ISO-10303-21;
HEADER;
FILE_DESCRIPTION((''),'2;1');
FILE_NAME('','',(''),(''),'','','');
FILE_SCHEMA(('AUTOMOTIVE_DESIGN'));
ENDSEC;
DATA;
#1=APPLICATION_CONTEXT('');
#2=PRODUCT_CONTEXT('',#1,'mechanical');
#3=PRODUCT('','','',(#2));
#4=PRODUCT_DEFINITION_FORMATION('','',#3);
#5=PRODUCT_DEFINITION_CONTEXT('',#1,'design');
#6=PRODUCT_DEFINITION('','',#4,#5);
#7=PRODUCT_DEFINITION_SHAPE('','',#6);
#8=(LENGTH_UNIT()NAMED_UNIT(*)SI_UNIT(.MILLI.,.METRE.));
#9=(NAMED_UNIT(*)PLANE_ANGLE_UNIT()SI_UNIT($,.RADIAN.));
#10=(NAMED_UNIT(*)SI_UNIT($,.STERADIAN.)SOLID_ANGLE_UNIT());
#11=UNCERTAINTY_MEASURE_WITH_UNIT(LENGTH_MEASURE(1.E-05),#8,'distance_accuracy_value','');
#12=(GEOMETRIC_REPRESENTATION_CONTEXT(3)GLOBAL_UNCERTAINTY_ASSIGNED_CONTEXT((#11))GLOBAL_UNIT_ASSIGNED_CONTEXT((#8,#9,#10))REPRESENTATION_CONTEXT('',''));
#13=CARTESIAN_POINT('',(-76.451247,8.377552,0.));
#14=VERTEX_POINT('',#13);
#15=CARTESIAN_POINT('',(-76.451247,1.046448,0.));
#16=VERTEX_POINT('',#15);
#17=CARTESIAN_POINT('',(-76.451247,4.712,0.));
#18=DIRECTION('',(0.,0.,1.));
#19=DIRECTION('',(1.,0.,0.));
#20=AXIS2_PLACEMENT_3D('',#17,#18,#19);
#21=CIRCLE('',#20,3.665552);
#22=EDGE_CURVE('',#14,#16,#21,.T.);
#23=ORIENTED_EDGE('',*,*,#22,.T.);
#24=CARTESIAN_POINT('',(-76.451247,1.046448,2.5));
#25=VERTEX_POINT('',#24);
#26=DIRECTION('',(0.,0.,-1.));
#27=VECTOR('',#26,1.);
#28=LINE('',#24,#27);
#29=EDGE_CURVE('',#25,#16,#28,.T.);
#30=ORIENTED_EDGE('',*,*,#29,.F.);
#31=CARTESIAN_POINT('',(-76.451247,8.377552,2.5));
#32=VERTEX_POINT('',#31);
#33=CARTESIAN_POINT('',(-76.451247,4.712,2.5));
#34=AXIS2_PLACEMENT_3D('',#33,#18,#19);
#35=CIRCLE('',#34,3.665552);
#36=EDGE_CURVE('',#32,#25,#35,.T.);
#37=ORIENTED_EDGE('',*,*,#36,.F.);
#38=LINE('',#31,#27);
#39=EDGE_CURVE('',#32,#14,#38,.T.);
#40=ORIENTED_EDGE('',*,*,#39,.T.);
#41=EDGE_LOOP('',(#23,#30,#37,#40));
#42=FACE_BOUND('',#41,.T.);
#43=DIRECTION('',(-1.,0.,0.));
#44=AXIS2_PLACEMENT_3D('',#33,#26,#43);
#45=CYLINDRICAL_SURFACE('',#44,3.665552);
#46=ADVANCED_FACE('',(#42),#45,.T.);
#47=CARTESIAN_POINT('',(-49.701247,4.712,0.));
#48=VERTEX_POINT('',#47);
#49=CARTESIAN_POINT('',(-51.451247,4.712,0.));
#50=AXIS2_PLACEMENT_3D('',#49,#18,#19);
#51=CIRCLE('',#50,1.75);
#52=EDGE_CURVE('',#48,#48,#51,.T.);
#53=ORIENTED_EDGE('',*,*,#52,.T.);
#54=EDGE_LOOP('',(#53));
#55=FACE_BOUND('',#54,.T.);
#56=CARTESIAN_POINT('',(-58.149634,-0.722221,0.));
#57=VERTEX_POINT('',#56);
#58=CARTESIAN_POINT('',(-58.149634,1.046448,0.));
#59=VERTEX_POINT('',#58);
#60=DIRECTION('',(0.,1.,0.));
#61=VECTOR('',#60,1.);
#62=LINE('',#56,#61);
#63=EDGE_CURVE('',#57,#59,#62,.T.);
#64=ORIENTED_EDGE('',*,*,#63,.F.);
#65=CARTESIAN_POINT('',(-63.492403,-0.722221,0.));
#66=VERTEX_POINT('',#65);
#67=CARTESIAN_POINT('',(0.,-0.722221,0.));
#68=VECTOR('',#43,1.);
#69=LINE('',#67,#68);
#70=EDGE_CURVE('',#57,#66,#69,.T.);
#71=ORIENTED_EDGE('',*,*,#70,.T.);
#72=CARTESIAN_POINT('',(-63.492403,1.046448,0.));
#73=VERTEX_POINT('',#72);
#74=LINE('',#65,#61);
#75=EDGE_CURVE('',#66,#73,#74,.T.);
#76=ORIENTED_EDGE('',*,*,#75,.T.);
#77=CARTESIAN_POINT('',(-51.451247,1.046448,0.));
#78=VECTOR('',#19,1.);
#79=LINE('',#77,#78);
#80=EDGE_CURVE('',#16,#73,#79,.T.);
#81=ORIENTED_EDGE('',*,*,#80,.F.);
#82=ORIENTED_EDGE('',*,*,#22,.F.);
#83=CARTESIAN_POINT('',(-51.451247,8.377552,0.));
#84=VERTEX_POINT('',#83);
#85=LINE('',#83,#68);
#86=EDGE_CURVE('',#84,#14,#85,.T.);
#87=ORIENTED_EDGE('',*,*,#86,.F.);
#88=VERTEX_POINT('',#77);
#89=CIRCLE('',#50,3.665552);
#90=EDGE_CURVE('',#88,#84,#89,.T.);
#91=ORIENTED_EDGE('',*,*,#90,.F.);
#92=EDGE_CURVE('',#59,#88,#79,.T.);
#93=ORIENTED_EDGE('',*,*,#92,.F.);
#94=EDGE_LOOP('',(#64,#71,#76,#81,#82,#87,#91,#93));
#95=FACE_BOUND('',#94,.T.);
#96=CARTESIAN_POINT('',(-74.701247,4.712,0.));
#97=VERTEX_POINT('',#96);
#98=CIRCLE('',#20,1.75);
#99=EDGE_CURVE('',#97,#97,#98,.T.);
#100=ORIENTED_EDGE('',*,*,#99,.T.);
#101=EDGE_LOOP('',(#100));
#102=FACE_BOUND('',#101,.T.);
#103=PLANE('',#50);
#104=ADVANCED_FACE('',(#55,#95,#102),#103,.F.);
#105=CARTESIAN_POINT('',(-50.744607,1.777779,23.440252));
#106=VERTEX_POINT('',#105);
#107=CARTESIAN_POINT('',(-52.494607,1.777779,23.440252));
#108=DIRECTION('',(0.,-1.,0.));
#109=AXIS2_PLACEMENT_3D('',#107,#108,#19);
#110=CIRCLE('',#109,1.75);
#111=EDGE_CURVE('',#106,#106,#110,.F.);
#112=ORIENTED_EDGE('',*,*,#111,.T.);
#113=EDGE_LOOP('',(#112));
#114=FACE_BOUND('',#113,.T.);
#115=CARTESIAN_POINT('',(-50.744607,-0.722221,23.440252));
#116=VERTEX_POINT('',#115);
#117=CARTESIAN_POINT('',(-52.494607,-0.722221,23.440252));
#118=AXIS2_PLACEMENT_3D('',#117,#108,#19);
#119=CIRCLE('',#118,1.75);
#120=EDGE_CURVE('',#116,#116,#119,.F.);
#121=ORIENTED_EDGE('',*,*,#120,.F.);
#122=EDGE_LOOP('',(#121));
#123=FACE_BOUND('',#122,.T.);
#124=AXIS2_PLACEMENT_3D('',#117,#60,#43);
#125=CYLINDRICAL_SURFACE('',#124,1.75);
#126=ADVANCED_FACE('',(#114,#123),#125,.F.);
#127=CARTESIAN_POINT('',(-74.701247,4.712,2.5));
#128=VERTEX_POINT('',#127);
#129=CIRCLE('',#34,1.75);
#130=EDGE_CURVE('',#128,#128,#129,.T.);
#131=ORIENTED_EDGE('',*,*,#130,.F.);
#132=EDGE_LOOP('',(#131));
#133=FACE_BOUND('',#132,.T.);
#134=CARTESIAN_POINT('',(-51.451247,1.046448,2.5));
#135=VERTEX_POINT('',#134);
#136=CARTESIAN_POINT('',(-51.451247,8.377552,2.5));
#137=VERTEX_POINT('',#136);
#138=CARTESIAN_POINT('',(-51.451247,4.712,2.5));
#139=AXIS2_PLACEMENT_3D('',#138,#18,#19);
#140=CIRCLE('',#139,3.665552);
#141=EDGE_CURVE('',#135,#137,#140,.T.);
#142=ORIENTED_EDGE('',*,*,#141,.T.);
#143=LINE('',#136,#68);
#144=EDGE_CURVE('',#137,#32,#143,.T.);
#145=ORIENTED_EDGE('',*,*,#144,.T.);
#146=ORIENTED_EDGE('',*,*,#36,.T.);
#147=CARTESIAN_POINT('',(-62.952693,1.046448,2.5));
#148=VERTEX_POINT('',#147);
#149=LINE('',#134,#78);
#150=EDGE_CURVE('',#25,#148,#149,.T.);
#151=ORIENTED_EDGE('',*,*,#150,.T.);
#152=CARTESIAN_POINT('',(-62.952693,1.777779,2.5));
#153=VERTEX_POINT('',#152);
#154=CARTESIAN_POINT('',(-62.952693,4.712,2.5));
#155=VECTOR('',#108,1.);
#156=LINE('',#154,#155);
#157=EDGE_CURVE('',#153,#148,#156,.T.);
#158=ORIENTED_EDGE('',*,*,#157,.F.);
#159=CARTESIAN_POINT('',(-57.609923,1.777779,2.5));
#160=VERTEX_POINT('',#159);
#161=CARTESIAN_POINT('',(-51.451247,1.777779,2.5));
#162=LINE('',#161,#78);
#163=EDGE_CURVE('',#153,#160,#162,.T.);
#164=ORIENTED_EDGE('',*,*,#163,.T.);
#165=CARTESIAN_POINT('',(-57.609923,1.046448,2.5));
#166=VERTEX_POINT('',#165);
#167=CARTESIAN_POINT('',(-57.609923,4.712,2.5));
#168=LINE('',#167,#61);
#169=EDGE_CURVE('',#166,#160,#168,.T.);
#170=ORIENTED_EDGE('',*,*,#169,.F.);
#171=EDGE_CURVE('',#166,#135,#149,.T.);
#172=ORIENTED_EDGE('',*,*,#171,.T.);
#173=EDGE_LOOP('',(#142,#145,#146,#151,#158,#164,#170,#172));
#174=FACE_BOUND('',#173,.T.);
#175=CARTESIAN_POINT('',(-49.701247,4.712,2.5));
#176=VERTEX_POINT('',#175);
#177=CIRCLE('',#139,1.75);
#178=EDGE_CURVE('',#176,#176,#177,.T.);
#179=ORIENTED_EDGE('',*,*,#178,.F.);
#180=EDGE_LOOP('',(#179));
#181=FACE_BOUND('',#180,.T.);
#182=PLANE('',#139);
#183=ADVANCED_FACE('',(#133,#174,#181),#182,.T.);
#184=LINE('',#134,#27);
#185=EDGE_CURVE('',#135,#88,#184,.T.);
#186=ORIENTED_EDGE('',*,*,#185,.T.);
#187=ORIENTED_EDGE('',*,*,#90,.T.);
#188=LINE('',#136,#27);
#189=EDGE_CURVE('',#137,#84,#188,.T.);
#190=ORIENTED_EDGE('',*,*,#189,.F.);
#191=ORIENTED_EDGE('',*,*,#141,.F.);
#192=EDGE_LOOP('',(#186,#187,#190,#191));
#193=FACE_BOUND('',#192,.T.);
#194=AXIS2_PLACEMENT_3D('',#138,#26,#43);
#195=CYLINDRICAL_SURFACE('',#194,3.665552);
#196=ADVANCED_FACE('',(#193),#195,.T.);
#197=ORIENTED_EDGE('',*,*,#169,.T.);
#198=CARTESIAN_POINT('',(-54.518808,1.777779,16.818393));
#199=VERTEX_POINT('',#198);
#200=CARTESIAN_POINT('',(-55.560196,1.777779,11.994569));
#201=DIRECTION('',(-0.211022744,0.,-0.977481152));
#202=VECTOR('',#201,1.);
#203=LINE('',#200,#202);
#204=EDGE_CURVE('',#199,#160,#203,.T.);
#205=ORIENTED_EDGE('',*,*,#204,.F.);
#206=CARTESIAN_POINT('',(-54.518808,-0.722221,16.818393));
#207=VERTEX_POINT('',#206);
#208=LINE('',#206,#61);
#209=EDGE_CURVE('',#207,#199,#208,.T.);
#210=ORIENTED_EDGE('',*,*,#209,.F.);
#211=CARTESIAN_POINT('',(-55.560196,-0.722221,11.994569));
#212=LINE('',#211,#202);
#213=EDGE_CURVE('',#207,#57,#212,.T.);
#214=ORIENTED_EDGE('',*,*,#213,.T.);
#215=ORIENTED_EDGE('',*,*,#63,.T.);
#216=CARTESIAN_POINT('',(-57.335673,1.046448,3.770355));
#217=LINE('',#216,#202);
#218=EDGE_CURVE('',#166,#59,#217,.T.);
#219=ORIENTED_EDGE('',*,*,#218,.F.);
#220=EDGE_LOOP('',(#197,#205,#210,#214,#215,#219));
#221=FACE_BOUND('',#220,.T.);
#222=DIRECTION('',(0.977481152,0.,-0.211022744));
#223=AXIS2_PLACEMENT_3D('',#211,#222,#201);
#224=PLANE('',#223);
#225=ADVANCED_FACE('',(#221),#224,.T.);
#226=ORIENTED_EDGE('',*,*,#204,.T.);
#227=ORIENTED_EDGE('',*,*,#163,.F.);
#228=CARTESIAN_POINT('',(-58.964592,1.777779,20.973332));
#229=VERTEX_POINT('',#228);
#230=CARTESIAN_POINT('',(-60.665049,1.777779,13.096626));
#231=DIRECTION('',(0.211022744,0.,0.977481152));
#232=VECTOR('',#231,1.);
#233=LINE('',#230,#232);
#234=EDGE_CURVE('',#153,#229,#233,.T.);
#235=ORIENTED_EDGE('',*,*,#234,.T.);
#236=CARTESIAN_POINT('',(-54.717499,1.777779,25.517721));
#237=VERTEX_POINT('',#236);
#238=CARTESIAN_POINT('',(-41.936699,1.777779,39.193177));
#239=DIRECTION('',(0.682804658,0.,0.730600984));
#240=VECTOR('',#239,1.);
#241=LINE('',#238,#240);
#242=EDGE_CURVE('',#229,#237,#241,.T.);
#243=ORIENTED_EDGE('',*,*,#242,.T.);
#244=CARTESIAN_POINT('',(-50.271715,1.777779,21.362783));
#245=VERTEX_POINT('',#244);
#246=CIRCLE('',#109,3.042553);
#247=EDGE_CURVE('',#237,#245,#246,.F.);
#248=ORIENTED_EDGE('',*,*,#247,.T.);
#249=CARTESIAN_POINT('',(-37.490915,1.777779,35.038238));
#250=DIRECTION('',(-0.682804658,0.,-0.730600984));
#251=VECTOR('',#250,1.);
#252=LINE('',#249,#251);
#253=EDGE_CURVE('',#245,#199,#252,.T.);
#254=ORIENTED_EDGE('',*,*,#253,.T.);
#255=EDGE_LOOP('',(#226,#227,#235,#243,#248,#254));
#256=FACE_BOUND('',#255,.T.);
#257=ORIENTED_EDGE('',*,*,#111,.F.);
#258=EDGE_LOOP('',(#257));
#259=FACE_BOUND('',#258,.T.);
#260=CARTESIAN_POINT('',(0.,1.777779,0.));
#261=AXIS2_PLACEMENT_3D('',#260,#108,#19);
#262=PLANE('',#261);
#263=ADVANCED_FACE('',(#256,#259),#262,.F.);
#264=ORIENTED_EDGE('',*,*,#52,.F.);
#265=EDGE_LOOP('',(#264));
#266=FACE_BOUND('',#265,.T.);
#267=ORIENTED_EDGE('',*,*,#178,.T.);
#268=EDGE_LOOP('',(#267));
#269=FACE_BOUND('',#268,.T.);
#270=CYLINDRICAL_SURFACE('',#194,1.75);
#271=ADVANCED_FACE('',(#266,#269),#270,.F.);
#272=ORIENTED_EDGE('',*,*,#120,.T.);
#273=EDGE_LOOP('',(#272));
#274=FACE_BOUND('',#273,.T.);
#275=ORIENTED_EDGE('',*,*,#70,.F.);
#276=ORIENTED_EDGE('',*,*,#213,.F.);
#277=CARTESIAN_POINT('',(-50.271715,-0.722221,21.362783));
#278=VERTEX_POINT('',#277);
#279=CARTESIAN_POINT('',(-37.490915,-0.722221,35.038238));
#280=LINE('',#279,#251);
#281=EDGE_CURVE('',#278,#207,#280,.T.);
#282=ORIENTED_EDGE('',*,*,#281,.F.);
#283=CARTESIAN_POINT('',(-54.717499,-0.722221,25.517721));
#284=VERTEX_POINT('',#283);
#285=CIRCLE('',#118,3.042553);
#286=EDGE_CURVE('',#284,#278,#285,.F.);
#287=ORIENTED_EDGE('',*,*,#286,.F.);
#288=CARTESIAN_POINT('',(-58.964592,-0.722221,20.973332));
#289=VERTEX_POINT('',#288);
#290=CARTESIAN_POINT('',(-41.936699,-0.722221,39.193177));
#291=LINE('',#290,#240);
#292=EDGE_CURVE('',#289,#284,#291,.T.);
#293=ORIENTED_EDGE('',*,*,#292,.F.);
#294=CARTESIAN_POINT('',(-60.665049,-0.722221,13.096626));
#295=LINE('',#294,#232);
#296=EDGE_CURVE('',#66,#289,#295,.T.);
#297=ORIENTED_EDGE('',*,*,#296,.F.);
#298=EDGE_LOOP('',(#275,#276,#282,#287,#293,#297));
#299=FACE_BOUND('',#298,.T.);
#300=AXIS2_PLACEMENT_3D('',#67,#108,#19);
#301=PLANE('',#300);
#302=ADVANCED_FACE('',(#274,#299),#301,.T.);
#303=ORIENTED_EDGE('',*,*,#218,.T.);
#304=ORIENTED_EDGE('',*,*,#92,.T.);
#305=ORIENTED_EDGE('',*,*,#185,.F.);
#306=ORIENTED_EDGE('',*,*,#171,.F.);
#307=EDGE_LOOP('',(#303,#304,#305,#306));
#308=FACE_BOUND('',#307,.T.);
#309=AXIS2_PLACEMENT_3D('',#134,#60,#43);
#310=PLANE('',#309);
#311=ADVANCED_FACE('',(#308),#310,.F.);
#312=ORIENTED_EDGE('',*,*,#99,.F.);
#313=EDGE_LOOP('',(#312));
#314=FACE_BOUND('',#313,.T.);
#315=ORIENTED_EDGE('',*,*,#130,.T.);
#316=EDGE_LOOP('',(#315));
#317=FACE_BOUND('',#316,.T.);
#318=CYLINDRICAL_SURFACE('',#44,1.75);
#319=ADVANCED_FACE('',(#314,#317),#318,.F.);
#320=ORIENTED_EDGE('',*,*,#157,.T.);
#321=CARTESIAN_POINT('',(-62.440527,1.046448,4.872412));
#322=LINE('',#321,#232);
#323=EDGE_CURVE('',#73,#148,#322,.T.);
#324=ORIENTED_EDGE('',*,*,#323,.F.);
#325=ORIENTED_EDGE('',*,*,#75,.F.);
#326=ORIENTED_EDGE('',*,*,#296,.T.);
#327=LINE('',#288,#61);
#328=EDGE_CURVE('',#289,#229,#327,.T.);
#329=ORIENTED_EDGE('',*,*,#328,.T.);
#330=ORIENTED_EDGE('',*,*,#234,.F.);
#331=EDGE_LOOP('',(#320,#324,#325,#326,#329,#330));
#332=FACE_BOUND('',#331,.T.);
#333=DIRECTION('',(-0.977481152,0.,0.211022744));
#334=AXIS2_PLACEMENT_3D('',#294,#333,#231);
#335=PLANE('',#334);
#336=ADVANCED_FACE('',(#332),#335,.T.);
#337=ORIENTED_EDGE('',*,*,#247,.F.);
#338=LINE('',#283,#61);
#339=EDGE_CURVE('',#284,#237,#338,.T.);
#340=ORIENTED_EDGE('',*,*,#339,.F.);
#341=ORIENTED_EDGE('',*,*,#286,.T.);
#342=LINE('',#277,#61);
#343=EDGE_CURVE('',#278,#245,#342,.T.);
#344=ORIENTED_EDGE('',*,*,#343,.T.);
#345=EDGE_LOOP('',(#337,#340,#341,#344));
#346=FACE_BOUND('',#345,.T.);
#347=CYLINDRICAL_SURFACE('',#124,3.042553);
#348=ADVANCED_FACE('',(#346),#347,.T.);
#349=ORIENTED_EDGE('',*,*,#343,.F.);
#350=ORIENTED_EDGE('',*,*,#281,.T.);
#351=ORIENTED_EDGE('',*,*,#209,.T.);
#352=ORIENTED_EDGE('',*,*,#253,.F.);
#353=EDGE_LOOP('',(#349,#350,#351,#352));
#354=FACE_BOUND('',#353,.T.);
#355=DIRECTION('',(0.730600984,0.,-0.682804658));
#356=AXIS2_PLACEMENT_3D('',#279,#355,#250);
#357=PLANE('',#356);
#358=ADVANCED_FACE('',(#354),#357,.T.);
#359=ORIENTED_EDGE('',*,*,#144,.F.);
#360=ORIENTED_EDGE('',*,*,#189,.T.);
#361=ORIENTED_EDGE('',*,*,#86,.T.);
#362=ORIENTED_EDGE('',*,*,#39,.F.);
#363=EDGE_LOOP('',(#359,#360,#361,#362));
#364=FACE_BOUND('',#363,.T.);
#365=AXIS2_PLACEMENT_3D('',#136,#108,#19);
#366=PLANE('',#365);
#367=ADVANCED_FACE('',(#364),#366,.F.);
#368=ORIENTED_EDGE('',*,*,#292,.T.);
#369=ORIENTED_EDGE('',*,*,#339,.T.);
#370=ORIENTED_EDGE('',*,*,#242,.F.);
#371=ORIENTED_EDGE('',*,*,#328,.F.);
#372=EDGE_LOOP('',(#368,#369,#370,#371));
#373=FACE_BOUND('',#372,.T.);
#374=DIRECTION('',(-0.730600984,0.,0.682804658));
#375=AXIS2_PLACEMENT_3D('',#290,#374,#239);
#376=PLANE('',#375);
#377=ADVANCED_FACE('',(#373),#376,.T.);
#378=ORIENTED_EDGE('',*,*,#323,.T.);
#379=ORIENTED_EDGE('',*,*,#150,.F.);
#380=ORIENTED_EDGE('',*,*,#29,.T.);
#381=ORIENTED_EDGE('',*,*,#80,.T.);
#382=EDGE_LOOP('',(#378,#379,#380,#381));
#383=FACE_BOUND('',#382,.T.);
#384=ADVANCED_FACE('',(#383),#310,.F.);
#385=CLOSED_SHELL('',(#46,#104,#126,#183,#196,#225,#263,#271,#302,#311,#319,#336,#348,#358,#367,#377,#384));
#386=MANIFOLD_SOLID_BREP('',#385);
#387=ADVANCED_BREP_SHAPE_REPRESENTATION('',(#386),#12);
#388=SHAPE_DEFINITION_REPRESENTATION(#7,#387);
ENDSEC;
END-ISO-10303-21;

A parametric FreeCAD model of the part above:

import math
import FreeCAD as App
import Part
import Sketcher
from FreeCAD import Vector
Q = App.Units.Quantity

doc = App.newDocument("Part")
body = doc.addObject("PartDesign::Body", "Body")

# Sketch on XY plane
sketch1 = body.newObject("Sketcher::SketchObject", "Sketch")
sketch1.AttachmentSupport = (doc.getObject("XY_Plane"), [""])
sketch1.MapMode = "FlatFace"
sketch1.addGeometry(Part.LineSegment(Vector(-76.5, 1, 0), Vector(-51.5, 1, 0)), False)
sketch1.addGeometry(Part.ArcOfCircle(Part.Circle(Vector(-51.5, 4.7, 0), Vector(0, 0, 1), 3.7), math.radians(-90), math.radians(90)), False)
sketch1.addGeometry(Part.LineSegment(Vector(-51.5, 8.4, 0), Vector(-76.5, 8.4, 0)), False)
sketch1.addGeometry(Part.ArcOfCircle(Part.Circle(Vector(-76.5, 4.7, 0), Vector(0, 0, 1), 3.7), math.radians(90), math.radians(270)), False)
sketch1.addGeometry(Part.Circle(Vector(-51.5, 4.7, 0), Vector(0, 0, 1), 1.8), False)
sketch1.addGeometry(Part.Circle(Vector(-76.5, 4.7, 0), Vector(0, 0, 1), 1.8), False)
sketch1.addConstraint(Sketcher.Constraint("Tangent", 0, 2, 1, 1))
sketch1.addConstraint(Sketcher.Constraint("Tangent", 1, 2, 2, 1))
sketch1.addConstraint(Sketcher.Constraint("Tangent", 2, 2, 3, 1))
sketch1.addConstraint(Sketcher.Constraint("Tangent", 3, 2, 0, 1))
sketch1.addConstraint(Sketcher.Constraint("Horizontal", 0))
sketch1.addConstraint(Sketcher.Constraint("Horizontal", 2))
sketch1.addConstraint(Sketcher.Constraint("Coincident", 4, 3, 1, 3))
sketch1.addConstraint(Sketcher.Constraint("Coincident", 5, 3, 3, 3))
sketch1.addConstraint(Sketcher.Constraint("Equal", 4, 5))
sketch1.addConstraint(Sketcher.Constraint("Diameter", 4, Q("3.5 mm")))
sketch1.addConstraint(Sketcher.Constraint("DistanceX", 0, 1, 0, 2, Q("25 mm")))
sketch1.addConstraint(Sketcher.Constraint("DistanceY", -1, 1, 1, 3, Q("4.712 mm")))
sketch1.addConstraint(Sketcher.Constraint("Radius", 1, Q("3.665552 mm")))
sketch1.addConstraint(Sketcher.Constraint("DistanceX", 1, 3, -1, 1, Q("51.451247 mm")))
pad1 = body.newObject("PartDesign::Pad", "Pad")
pad1.Profile = sketch1
pad1.Length = 2.5

# Sketch on XZ plane
sketch2 = body.newObject("Sketcher::SketchObject", "Sketch001")
sketch2.AttachmentSupport = (doc.getObject("XZ_Plane"), [""])
sketch2.MapMode = "FlatFace"
sketch2.AttachmentOffset = App.Placement(Vector(0, 0, -1.777779), App.Rotation())
sketch2.addGeometry(Part.LineSegment(Vector(-58.1, 0, 0), Vector(-54.5, 16.8, 0)), False)
sketch2.addGeometry(Part.LineSegment(Vector(-54.5, 16.8, 0), Vector(-50.3, 21.4, 0)), False)
sketch2.addGeometry(Part.ArcOfCircle(Part.Circle(Vector(-52.5, 23.4, 0), Vector(0, 0, 1), 3), math.radians(-43), math.radians(137)), False)
sketch2.addGeometry(Part.LineSegment(Vector(-54.7, 25.5, 0), Vector(-59, 21, 0)), False)
sketch2.addGeometry(Part.LineSegment(Vector(-59, 21, 0), Vector(-63.5, 0, 0)), False)
sketch2.addGeometry(Part.LineSegment(Vector(-63.5, 0, 0), Vector(-58.1, 0, 0)), False)
sketch2.addGeometry(Part.Circle(Vector(-52.5, 23.4, 0), Vector(0, 0, 1), 1.8), False)
sketch2.addConstraint(Sketcher.Constraint("Coincident", 0, 2, 1, 1))
sketch2.addConstraint(Sketcher.Constraint("Tangent", 1, 2, 2, 1))
sketch2.addConstraint(Sketcher.Constraint("Tangent", 2, 2, 3, 1))
sketch2.addConstraint(Sketcher.Constraint("Coincident", 3, 2, 4, 1))
sketch2.addConstraint(Sketcher.Constraint("Coincident", 4, 2, 5, 1))
sketch2.addConstraint(Sketcher.Constraint("Coincident", 5, 2, 0, 1))
sketch2.addConstraint(Sketcher.Constraint("Horizontal", 5))
sketch2.addConstraint(Sketcher.Constraint("Coincident", 6, 3, 2, 3))
sketch2.addConstraint(Sketcher.Constraint("PointOnObject", 4, 2, -1))
sketch2.addConstraint(Sketcher.Constraint("Parallel", 1, 3))
sketch2.addConstraint(Sketcher.Constraint("Parallel", 0, 4))
sketch2.addConstraint(Sketcher.Constraint("Equal", 1, 3))
sketch2.addConstraint(Sketcher.Constraint("Diameter", 6, Q("3.5 mm")))
sketch2.addConstraint(Sketcher.Constraint("Radius", 2, Q("3.042553 mm")))
sketch2.addConstraint(Sketcher.Constraint("DistanceX", 5, 1, 5, 2, Q("5.34277 mm")))
sketch2.addConstraint(Sketcher.Constraint("DistanceX", 2, 2, -1, 1, Q("54.717499 mm")))
sketch2.addConstraint(Sketcher.Constraint("DistanceX", 0, 2, 2, 3, Q("2.024201 mm")))
sketch2.addConstraint(Sketcher.Constraint("Distance", 0, Q("17.205849 mm")))
sketch2.addConstraint(Sketcher.Constraint("Distance", 1, Q("6.220071 mm")))
pad2 = body.newObject("PartDesign::Pad", "Pad001")
pad2.Profile = sketch2
pad2.Length = 2.5

doc.recompute()
